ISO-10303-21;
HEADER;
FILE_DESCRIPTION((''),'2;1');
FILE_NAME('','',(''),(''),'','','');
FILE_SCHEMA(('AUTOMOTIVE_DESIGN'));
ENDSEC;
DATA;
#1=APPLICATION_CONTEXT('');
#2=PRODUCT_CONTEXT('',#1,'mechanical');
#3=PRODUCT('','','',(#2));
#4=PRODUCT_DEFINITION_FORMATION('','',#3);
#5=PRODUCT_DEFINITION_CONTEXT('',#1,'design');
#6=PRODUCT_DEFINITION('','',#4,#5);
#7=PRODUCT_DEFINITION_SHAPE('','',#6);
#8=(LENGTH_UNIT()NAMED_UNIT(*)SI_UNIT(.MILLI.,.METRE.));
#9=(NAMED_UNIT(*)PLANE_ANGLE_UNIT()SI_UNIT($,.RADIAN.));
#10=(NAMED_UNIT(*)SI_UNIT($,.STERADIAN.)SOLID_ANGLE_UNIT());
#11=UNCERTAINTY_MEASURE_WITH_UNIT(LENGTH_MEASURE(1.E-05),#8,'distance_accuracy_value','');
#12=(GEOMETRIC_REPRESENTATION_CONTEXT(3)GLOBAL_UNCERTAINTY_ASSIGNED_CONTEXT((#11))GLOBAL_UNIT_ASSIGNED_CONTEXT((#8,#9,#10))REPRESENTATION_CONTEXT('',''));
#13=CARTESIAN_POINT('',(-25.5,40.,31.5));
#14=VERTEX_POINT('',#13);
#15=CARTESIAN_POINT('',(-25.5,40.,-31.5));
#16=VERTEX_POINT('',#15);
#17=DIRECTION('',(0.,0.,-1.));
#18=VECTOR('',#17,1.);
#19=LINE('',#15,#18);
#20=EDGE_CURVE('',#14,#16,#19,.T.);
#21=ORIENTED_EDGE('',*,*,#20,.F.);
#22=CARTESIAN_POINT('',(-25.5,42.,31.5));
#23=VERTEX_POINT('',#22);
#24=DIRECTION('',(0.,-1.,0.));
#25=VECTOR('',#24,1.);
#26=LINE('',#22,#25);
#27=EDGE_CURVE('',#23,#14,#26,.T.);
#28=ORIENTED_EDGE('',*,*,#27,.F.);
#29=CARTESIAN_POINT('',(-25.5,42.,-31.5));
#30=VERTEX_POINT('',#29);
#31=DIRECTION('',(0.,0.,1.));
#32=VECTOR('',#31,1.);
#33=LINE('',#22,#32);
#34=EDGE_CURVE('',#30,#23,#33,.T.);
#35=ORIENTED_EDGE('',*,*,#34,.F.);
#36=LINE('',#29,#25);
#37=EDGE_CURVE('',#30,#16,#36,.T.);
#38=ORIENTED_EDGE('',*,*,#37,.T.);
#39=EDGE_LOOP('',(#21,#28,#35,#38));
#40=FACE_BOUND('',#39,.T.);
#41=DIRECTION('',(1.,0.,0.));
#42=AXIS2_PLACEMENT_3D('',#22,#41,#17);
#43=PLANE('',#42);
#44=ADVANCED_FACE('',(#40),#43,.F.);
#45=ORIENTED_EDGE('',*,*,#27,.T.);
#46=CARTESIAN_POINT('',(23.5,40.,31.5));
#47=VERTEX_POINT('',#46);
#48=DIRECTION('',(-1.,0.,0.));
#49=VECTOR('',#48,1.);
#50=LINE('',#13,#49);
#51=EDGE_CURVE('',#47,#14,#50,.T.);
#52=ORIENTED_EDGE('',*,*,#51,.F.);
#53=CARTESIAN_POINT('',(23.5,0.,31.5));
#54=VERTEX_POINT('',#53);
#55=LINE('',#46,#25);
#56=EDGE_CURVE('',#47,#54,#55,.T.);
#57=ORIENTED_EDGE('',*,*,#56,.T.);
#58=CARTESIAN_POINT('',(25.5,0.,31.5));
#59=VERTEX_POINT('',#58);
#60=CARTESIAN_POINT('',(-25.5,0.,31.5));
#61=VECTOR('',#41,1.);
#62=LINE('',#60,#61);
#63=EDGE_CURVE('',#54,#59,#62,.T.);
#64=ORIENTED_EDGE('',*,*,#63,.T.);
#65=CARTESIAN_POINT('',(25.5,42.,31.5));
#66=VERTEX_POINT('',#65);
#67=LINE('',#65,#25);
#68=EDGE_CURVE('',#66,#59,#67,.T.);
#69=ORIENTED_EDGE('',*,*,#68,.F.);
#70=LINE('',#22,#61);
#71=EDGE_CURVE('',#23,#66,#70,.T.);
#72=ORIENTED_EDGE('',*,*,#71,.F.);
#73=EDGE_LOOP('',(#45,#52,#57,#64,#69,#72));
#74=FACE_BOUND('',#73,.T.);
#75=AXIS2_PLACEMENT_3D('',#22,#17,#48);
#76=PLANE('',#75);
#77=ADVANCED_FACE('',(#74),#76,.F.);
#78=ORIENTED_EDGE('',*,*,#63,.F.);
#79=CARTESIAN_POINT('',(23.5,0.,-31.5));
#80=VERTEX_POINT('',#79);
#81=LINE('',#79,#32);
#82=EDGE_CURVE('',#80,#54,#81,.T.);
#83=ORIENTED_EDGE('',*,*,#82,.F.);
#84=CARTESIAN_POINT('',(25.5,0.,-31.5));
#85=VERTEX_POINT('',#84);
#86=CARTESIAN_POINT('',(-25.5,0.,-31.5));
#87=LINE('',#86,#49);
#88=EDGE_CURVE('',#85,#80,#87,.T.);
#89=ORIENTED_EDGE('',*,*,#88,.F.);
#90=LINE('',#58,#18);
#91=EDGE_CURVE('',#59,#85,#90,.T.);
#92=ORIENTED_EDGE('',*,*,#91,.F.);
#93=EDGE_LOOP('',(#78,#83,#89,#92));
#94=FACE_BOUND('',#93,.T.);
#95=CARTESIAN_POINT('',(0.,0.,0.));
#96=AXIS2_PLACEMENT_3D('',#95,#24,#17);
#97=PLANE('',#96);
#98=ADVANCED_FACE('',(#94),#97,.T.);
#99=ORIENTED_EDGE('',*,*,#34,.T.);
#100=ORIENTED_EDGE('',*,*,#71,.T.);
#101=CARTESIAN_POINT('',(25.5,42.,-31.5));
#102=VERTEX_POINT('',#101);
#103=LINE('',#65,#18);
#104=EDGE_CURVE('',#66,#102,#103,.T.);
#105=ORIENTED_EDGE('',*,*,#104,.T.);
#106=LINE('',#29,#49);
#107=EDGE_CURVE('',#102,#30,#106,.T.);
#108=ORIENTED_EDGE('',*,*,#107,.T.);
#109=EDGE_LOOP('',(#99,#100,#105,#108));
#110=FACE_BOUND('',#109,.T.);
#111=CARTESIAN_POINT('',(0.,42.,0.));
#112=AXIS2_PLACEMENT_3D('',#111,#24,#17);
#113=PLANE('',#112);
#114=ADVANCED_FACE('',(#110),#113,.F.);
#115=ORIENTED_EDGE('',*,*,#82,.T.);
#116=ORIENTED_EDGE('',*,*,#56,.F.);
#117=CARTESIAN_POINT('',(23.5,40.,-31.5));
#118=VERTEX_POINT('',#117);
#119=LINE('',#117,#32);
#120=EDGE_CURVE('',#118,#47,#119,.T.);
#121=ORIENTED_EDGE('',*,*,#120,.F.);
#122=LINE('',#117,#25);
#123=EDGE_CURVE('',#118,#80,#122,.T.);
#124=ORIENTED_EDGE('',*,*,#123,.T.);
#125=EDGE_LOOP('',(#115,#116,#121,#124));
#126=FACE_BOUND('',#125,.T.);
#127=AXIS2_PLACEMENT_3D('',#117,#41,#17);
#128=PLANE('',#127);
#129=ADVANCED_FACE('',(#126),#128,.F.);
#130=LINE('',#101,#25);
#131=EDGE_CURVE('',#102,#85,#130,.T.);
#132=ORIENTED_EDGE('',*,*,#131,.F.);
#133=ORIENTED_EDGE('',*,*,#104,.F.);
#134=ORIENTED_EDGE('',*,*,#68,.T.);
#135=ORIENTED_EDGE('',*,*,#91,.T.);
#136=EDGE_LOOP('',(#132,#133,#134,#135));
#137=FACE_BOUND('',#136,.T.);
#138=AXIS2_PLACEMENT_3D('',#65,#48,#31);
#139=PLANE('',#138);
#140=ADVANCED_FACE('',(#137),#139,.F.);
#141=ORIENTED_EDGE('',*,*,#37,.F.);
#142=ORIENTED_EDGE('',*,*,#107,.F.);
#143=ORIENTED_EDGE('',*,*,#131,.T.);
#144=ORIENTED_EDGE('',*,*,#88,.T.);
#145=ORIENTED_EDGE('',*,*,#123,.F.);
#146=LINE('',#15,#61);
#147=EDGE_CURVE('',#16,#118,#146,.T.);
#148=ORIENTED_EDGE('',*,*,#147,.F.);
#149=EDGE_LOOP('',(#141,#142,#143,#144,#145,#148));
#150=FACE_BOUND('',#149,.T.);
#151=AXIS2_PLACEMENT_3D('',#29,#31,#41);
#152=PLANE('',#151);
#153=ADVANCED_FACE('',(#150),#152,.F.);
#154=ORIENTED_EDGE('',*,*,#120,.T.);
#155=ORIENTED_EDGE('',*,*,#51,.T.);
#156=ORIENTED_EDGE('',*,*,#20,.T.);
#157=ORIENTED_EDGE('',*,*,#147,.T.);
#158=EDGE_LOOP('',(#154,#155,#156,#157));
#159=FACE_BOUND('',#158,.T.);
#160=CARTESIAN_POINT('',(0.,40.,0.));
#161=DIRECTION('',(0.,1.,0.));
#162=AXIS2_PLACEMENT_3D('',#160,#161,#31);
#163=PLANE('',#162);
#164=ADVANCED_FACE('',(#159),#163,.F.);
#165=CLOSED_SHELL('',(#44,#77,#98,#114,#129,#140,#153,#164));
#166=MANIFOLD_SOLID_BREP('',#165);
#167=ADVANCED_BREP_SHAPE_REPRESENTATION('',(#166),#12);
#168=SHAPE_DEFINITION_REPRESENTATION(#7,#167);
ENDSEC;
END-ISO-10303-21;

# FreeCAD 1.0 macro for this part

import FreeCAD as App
import Part
import Sketcher

V = App.Vector

doc = App.newDocument("Part")
body = doc.addObject("PartDesign::Body", "Body")

# Sketch on XZ plane
sketch1 = body.newObject("Sketcher::SketchObject", "Sketch")
sketch1.AttachmentSupport = (doc.getObject("XZ_Plane"), [""])
sketch1.MapMode = "FlatFace"
sketch1.addGeometry(Part.LineSegment(V(-26, -32, 0), V(-26, 32, 0)), False)
sketch1.addGeometry(Part.LineSegment(V(-26, 32, 0), V(26, 32, 0)), False)
sketch1.addGeometry(Part.LineSegment(V(26, 32, 0), V(26, -32, 0)), False)
sketch1.addGeometry(Part.LineSegment(V(26, -32, 0), V(-26, -32, 0)), False)
sketch1.addConstraint(Sketcher.Constraint("Coincident", 0, 2, 1, 1))
sketch1.addConstraint(Sketcher.Constraint("Coincident", 1, 2, 2, 1))
sketch1.addConstraint(Sketcher.Constraint("Coincident", 2, 2, 3, 1))
sketch1.addConstraint(Sketcher.Constraint("Coincident", 3, 2, 0, 1))
sketch1.addConstraint(Sketcher.Constraint("Vertical", 0))
sketch1.addConstraint(Sketcher.Constraint("Horizontal", 1))
sketch1.addConstraint(Sketcher.Constraint("Vertical", 2))
sketch1.addConstraint(Sketcher.Constraint("Horizontal", 3))
sketch1.addConstraint(Sketcher.Constraint("Symmetric", 0, 2, 2, 2, -1, 1))
sketch1.addConstraint(Sketcher.Constraint("DistanceX", 1, 1, 1, 2, 51.0))
sketch1.addConstraint(Sketcher.Constraint("DistanceY", 0, 1, 0, 2, 63.0))
pad1 = body.newObject("PartDesign::Pad", "Pad")
pad1.Profile = sketch1
pad1.Length = 42
pad1.Reversed = True

# Sketch on XZ plane
sketch2 = body.newObject("Sketcher::SketchObject", "Sketch001")
sketch2.AttachmentSupport = (doc.getObject("XZ_Plane"), [""])
sketch2.MapMode = "FlatFace"
sketch2.addGeometry(Part.LineSegment(V(24, -32, 0), V(24, 32, 0)), False)
sketch2.addGeometry(Part.LineSegment(V(24, 32, 0), V(-26, 32, 0)), False)
sketch2.addGeometry(Part.LineSegment(V(-26, 32, 0), V(-26, -32, 0)), False)
sketch2.addGeometry(Part.LineSegment(V(-26, -32, 0), V(24, -32, 0)), False)
sketch2.addConstraint(Sketcher.Constraint("Coincident", 0, 2, 1, 1))
sketch2.addConstraint(Sketcher.Constraint("Coincident", 1, 2, 2, 1))
sketch2.addConstraint(Sketcher.Constraint("Coincident", 2, 2, 3, 1))
sketch2.addConstraint(Sketcher.Constraint("Coincident", 3, 2, 0, 1))
sketch2.addConstraint(Sketcher.Constraint("Vertical", 0))
sketch2.addConstraint(Sketcher.Constraint("Horizontal", 1))
sketch2.addConstraint(Sketcher.Constraint("Vertical", 2))
sketch2.addConstraint(Sketcher.Constraint("Horizontal", 3))
sketch2.addConstraint(Sketcher.Constraint("DistanceX", 1, 2, 1, 1, 49.0))
sketch2.addConstraint(Sketcher.Constraint("DistanceY", 0, 1, 0, 2, 63.0))
sketch2.addConstraint(Sketcher.Constraint("DistanceX", -1, 1, 0, 2, 23.5))
sketch2.addConstraint(Sketcher.Constraint("DistanceY", -1, 1, 0, 2, 31.5))
pocket1 = body.newObject("PartDesign::Pocket", "Pocket")
pocket1.Profile = sketch2
pocket1.Length = 40

doc.recompute()
